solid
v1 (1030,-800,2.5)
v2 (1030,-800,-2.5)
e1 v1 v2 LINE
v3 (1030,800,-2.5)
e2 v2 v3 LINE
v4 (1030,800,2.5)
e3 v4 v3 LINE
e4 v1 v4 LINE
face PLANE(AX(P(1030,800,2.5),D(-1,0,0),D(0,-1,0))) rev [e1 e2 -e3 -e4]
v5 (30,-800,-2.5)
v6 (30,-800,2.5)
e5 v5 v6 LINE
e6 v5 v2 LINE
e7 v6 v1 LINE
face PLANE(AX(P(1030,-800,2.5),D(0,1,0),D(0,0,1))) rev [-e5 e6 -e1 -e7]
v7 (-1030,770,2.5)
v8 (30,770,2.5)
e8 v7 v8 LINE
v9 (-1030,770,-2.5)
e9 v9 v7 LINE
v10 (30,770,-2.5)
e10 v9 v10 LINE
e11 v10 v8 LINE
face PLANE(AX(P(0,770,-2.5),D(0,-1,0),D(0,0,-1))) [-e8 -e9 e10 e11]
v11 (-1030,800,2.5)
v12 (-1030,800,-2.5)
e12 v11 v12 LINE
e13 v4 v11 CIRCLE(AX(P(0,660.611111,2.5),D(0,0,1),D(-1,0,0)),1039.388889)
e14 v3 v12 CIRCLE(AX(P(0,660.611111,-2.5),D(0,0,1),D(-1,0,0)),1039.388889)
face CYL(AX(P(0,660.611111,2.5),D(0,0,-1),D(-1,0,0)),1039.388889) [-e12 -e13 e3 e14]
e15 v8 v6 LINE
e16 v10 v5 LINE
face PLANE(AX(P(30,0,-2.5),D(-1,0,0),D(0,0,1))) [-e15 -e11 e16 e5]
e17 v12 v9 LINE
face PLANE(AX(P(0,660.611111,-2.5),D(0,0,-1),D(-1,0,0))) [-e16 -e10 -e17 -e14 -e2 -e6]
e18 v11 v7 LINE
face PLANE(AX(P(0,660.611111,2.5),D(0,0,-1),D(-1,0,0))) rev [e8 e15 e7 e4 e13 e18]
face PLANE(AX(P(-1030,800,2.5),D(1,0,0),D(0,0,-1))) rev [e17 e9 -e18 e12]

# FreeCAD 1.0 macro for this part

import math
import FreeCAD as App
import Part
import Sketcher


def add_polygon(sketch, points):
    """Adds a closed chain of lines whose ends are joined by coincident constraints."""
    first, n = sketch.GeometryCount, len(points)
    for a, b in zip(points, points[1:] + points[:1]):
        sketch.addGeometry(Part.LineSegment(App.Vector(*a, 0), App.Vector(*b, 0)), False)
    for i in range(n):
        sketch.addConstraint(Sketcher.Constraint("Coincident", first + i, 2, first + (i + 1) % n, 1))

doc = App.newDocument("Part")
body = doc.addObject("PartDesign::Body", "Body")

# Sketch on XY plane
sketch1 = body.newObject("Sketcher::SketchObject", "Sketch")
sketch1.AttachmentSupport = (doc.getObject("XY_Plane"), [""])
sketch1.MapMode = "FlatFace"
sketch1.addGeometry([
    Part.LineSegment(App.Vector(1030, -800, 0), App.Vector(1030, 800, 0)),
    Part.ArcOfCircle(Part.Circle(App.Vector(0, 661, 0), App.Vector(0, 0, 1), 1039), math.radians(8), math.radians(172)),
    Part.LineSegment(App.Vector(-1030, 800, 0), App.Vector(-1030, -800, 0)),
    Part.LineSegment(App.Vector(-1030, -800, 0), App.Vector(1030, -800, 0)),
], False)
sketch1.addConstraint([
    Sketcher.Constraint("Coincident", 0, 2, 1, 1),
    Sketcher.Constraint("Coincident", 1, 2, 2, 1),
    Sketcher.Constraint("Coincident", 2, 2, 3, 1),
    Sketcher.Constraint("Coincident", 3, 2, 0, 1),
    Sketcher.Constraint("Vertical", 0),
    Sketcher.Constraint("Vertical", 2),
    Sketcher.Constraint("Horizontal", 3),
    Sketcher.Constraint("Symmetric", 0, 2, 2, 2, -1, 1),
    Sketcher.Constraint("PointOnObject", 1, 3, -2),
    Sketcher.Constraint("DistanceX", 3, 1, 3, 2, 2060.0),
    Sketcher.Constraint("DistanceY", 0, 1, 0, 2, 1600.0),
    Sketcher.Constraint("Radius", 1, 1039.388889),
])
pad1 = body.newObject("PartDesign::Pad", "Pad")
pad1.Profile = sketch1
pad1.Length = 5
pad1.Midplane = True

# Sketch on XY plane
sketch2 = body.newObject("Sketcher::SketchObject", "Sketch001")
sketch2.AttachmentSupport = (doc.getObject("XY_Plane"), [""])
sketch2.MapMode = "FlatFace"
sketch2.AttachmentOffset = App.Placement(App.Vector(0, 0, 2.5), App.Rotation())
add_polygon(sketch2, [(-1030, 770), (-1030, -800), (30, -800), (30, 770)])  # lines 0-3
sketch2.addConstraint([
    Sketcher.Constraint("Vertical", 0),
    Sketcher.Constraint("Horizontal", 1),
    Sketcher.Constraint("Vertical", 2),
    Sketcher.Constraint("Horizontal", 3),
    Sketcher.Constraint("DistanceX", 1, 1, 1, 2, 1060.0),
    Sketcher.Constraint("DistanceY", 0, 2, 0, 1, 1570.0),
    Sketcher.Constraint("DistanceX", 0, 2, -1, 1, 1030.0),
    Sketcher.Constraint("DistanceY", 0, 2, -1, 1, 800.0),
])
pocket1 = body.newObject("PartDesign::Pocket", "Pocket")
pocket1.Profile = sketch2
pocket1.Type = "ThroughAll"

doc.recompute()
